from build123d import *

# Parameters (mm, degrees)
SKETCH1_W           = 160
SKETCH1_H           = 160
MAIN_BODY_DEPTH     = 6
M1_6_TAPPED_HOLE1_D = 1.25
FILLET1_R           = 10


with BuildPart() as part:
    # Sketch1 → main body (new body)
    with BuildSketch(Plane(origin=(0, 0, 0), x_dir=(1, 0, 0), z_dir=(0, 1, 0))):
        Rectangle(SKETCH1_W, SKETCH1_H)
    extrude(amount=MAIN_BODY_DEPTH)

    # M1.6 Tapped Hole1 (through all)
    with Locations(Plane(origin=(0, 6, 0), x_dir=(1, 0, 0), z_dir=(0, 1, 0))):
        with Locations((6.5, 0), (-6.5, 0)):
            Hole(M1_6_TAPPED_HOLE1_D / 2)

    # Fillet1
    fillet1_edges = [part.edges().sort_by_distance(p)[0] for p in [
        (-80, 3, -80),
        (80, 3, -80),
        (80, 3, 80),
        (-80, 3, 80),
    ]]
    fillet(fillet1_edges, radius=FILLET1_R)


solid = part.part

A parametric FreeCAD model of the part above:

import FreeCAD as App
import Part
import Sketcher


def edges_at(feature, points):
    """Names of the edges that pass closest to the given points."""
    edges = feature.Shape.Edges
    near = lambda p: min(range(len(edges)), key=lambda i: edges[i].distToShape(Part.Vertex(*p))[0])
    return sorted({f"Edge{near(p) + 1}" for p in points})

doc = App.newDocument("Part")
params = doc.addObject("Spreadsheet::Sheet", "Params")
for row, (alias, value) in enumerate([
    ("sketch1_width", "160 mm"),
    ("pad1_length", "6 mm"),
    ("sketch2_diameter", "1.25 mm"),
    ("hole_diameter", "1.25 mm"),
    ("fillet_radius", "10 mm"),
], start=1):
    params.set(f"A{row}", alias)
    params.set(f"B{row}", "=" + value)
    params.setAlias(f"B{row}", alias)

body = doc.addObject("PartDesign::Body", "Body")

sketch1 = body.newObject("Sketcher::SketchObject", "Sketch")
sketch1.AttachmentSupport = (doc.getObject("XZ_Plane"), [""])
sketch1.MapMode = "FlatFace"
sketch1.addGeometry([
    Part.LineSegment(App.Vector(-80, -80, 0), App.Vector(-80, 80, 0)),
    Part.LineSegment(App.Vector(-80, 80, 0), App.Vector(80, 80, 0)),
    Part.LineSegment(App.Vector(80, 80, 0), App.Vector(80, -80, 0)),
    Part.LineSegment(App.Vector(80, -80, 0), App.Vector(-80, -80, 0)),
], False)
sketch1.addConstraint([
    Sketcher.Constraint("Coincident", 0, 2, 1, 1),
    Sketcher.Constraint("Coincident", 1, 2, 2, 1),
    Sketcher.Constraint("Coincident", 2, 2, 3, 1),
    Sketcher.Constraint("Coincident", 3, 2, 0, 1),
    Sketcher.Constraint("Vertical", 0),
    Sketcher.Constraint("Horizontal", 1),
    Sketcher.Constraint("Vertical", 2),
    Sketcher.Constraint("Horizontal", 3),
    Sketcher.Constraint("Symmetric", 0, 2, 2, 2, -1, 1),
    Sketcher.Constraint("Equal", 3, 0),
    Sketcher.Constraint("DistanceX", 1, 1, 1, 2, 160.0),
])
sketch1.setExpression("Constraints[10]", "Params.sketch1_width")
pad1 = body.newObject("PartDesign::Pad", "Pad")
pad1.Profile = sketch1
pad1.setExpression("Length", "Params.pad1_length")
pad1.Reversed = True

sketch2 = body.newObject("Sketcher::SketchObject", "Sketch001")
sketch2.AttachmentSupport = (doc.getObject("XZ_Plane"), [""])
sketch2.MapMode = "FlatFace"
sketch2.AttachmentOffset = App.Placement(App.Vector(0, 0, -6), App.Rotation())
sketch2.addGeometry([
    Part.Circle(App.Vector(6.5, 0, 0), App.Vector(0, 0, 1), 0.625),
    Part.Circle(App.Vector(-6.5, 0, 0), App.Vector(0, 0, 1), 0.625),
], False)
sketch2.addConstraint([
    Sketcher.Constraint("Equal", 0, 1),
    Sketcher.Constraint("Symmetric", 0, 3, 1, 3, -1, 1),
    Sketcher.Constraint("PointOnObject", 0, 3, -1),
    Sketcher.Constraint("Diameter", 0, 1.25),
    Sketcher.Constraint("DistanceX", 1, 3, 0, 3, 13.0),
])
sketch2.setExpression("Constraints[3]", "Params.sketch2_diameter")
doc.recompute()
hole = body.newObject("PartDesign::Hole", "Hole")
hole.Profile = sketch2
hole.ThreadType = "None"
hole.setExpression("Diameter", "Params.hole_diameter")
hole.DepthType = "ThroughAll"
hole.Reversed = True
doc.recompute()

fillet = body.newObject("PartDesign::Fillet", "Fillet")
fillet.Base = (hole, edges_at(hole, [
    (-80, 3, -80),
    (80, 3, -80),
    (80, 3, 80),
    (-80, 3, 80),
]))
fillet.setExpression("Radius", "Params.fillet_radius")

doc.recompute()
